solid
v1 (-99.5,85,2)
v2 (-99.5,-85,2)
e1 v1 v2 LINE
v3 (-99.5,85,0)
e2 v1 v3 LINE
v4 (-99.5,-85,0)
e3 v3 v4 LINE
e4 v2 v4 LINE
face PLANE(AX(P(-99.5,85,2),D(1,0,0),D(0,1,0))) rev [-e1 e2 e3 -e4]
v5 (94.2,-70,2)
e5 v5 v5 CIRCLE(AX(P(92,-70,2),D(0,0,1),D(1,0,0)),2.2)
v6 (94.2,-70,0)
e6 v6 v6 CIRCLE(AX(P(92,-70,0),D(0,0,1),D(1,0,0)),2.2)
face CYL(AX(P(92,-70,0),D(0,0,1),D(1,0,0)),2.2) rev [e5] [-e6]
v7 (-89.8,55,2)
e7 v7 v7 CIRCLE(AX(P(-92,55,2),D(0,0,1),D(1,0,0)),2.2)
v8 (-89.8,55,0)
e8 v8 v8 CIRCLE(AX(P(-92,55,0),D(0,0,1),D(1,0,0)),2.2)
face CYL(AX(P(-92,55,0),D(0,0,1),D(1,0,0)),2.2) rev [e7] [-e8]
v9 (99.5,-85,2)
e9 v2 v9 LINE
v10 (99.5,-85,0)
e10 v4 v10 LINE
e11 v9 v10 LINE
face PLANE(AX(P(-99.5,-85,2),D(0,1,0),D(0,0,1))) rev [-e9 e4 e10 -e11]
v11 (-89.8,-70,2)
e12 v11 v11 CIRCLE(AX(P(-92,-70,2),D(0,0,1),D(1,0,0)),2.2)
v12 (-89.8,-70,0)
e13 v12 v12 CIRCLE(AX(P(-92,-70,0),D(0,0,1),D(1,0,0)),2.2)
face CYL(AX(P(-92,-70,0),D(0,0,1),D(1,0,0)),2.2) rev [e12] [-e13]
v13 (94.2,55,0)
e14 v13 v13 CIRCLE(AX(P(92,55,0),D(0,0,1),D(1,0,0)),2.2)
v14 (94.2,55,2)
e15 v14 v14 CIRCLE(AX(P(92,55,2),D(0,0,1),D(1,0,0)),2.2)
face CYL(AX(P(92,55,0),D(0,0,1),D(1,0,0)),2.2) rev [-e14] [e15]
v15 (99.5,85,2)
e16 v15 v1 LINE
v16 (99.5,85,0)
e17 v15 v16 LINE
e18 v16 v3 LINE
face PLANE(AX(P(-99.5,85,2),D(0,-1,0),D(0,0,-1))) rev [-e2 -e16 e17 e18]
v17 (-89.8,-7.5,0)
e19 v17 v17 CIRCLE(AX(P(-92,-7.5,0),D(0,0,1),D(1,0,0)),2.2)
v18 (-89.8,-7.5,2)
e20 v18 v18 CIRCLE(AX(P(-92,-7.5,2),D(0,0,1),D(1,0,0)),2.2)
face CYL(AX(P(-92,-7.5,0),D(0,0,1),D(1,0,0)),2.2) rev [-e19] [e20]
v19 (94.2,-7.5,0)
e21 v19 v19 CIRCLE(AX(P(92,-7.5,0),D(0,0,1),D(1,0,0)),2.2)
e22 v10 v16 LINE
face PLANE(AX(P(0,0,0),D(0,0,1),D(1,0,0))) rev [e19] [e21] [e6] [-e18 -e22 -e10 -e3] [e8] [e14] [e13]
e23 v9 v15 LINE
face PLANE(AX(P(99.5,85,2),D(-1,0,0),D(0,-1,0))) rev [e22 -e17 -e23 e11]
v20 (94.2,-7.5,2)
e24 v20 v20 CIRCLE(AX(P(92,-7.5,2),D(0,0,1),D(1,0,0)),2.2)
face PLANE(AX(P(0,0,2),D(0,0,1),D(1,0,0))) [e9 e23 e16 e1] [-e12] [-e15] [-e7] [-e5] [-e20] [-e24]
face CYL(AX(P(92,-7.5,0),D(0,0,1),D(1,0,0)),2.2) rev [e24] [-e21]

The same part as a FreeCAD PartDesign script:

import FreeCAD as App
import Part
import Sketcher
Q = App.Units.Quantity

doc = App.newDocument("Part")
body = doc.addObject("PartDesign::Body", "Body")

# Sketch on XY plane
sketch1 = doc.addObject("Sketcher::SketchObject", "Sketch")
body.addObject(sketch1)
sketch1.AttachmentSupport = (doc.XY_Plane, [""])
sketch1.MapMode = "FlatFace"
sketch1.addGeometry([
    Part.LineSegment(App.Vector(-100, 85, 0), App.Vector(-100, -85, 0)),
    Part.LineSegment(App.Vector(-100, -85, 0), App.Vector(100, -85, 0)),
    Part.LineSegment(App.Vector(100, -85, 0), App.Vector(100, 85, 0)),
    Part.LineSegment(App.Vector(100, 85, 0), App.Vector(-100, 85, 0)),
], False)
sketch1.addConstraint([
    Sketcher.Constraint("Coincident", 0, 2, 1, 1),
    Sketcher.Constraint("Coincident", 1, 2, 2, 1),
    Sketcher.Constraint("Coincident", 2, 2, 3, 1),
    Sketcher.Constraint("Coincident", 3, 2, 0, 1),
    Sketcher.Constraint("Vertical", 0),
    Sketcher.Constraint("Horizontal", 1),
    Sketcher.Constraint("Vertical", 2),
    Sketcher.Constraint("Horizontal", 3),
    Sketcher.Constraint("Symmetric", 0, 2, 2, 2, -1, 1),
    Sketcher.Constraint("DistanceX", 1, 1, 1, 2, Q("199 mm")),
    Sketcher.Constraint("DistanceY", 0, 2, 0, 1, Q("170 mm")),
])
pad1 = doc.addObject("PartDesign::Pad", "Pad")
body.addObject(pad1)
pad1.Profile = sketch1
pad1.Length = 2

# Sketch on XY plane
sketch2 = doc.addObject("Sketcher::SketchObject", "Sketch001")
body.addObject(sketch2)
sketch2.AttachmentSupport = (doc.XY_Plane, [""])
sketch2.MapMode = "FlatFace"
sketch2.AttachmentOffset = App.Placement(App.Vector(0, 0, 2), App.Rotation())
sketch2.addGeometry([
    Part.Circle(App.Vector(-92, -70, 0), App.Vector(0, 0, 1), 2.2),  # 0
    Part.Circle(App.Vector(-92, -7.5, 0), App.Vector(0, 0, 1), 2.2),  # 1
    Part.Circle(App.Vector(-92, 55, 0), App.Vector(0, 0, 1), 2.2),  # 2
    Part.Circle(App.Vector(92, -70, 0), App.Vector(0, 0, 1), 2.2),  # 3
    Part.Circle(App.Vector(92, -7.5, 0), App.Vector(0, 0, 1), 2.2),  # 4
    Part.Circle(App.Vector(92, 55, 0), App.Vector(0, 0, 1), 2.2),  # 5
], False)
sketch2.addConstraint([
    Sketcher.Constraint("Equal", 0, 1),
    Sketcher.Constraint("Equal", 1, 2),
    Sketcher.Constraint("Equal", 2, 3),
    Sketcher.Constraint("Equal", 3, 4),
    Sketcher.Constraint("Equal", 4, 5),
    Sketcher.Constraint("Symmetric", 0, 3, 3, 3, -2),
    Sketcher.Constraint("Symmetric", 1, 3, 4, 3, -2),
    Sketcher.Constraint("Symmetric", 2, 3, 5, 3, -2),
    Sketcher.Constraint("Vertical", 0, 3, 1, 3),
    Sketcher.Constraint("Vertical", 1, 3, 2, 3),
    Sketcher.Constraint("Diameter", 0, Q("4.4 mm")),
    Sketcher.Constraint("DistanceX", 0, 3, -1, 1, Q("92 mm")),
    Sketcher.Constraint("DistanceY", 0, 3, -1, 1, Q("70 mm")),
    Sketcher.Constraint("DistanceY", -1, 1, 2, 3, Q("55 mm")),
    Sketcher.Constraint("DistanceY", 1, 3, -1, 1, Q("7.5 mm")),
])
pocket1 = doc.addObject("PartDesign::Pocket", "Pocket")
body.addObject(pocket1)
pocket1.Profile = sketch2
pocket1.Length = 2

doc.recompute()
